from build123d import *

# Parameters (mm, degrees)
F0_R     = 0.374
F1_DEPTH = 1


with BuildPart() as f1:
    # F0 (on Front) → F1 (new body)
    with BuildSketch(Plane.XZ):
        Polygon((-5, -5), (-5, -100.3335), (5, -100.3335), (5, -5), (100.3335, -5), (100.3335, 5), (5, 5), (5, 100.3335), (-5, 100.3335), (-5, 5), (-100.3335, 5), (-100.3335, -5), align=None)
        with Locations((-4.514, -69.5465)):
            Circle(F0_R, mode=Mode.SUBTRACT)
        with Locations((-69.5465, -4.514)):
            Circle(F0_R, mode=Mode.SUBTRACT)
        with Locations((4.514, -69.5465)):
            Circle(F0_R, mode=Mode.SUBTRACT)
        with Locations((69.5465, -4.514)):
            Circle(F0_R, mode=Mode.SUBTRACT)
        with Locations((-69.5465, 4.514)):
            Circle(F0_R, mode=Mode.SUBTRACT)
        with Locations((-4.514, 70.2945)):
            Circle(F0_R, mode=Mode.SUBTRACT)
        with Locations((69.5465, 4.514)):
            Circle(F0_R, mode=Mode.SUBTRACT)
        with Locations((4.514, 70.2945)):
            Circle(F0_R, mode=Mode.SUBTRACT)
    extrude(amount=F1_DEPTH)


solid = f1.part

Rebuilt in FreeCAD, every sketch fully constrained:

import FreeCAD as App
import Part
import Sketcher
Q = App.Units.Quantity


def add_polygon(sketch, points):
    """Adds a closed chain of lines whose ends are joined by coincident constraints."""
    first, n = sketch.GeometryCount, len(points)
    for a, b in zip(points, points[1:] + points[:1]):
        sketch.addGeometry(Part.LineSegment(App.Vector(*a, 0), App.Vector(*b, 0)), False)
    for i in range(n):
        sketch.addConstraint(Sketcher.Constraint("Coincident", first + i, 2, first + (i + 1) % n, 1))

doc = App.newDocument("Part")
body = doc.addObject("PartDesign::Body", "Body")

sketch1 = body.newObject("Sketcher::SketchObject", "Sketch")
sketch1.AttachmentSupport = (doc.getObject("XZ_Plane"), [""])
sketch1.MapMode = "FlatFace"
add_polygon(sketch1, [(-5, -5), (-5, -100.33), (5, -100.33), (5, -5), (100.33, -5), (100.33, 5), (5, 5), (5, 100.33), (-5, 100.33), (-5, 5), (-100.33, 5), (-100.33, -5)])
sketch1.addGeometry(Part.Circle(App.Vector(-4.51, -69.55, 0), App.Vector(0, 0, 1), 0.37), False)
sketch1.addGeometry(Part.Circle(App.Vector(-69.55, -4.51, 0), App.Vector(0, 0, 1), 0.37), False)
sketch1.addGeometry(Part.Circle(App.Vector(4.51, -69.55, 0), App.Vector(0, 0, 1), 0.37), False)
sketch1.addGeometry(Part.Circle(App.Vector(69.55, -4.51, 0), App.Vector(0, 0, 1), 0.37), False)
sketch1.addGeometry(Part.Circle(App.Vector(-69.55, 4.51, 0), App.Vector(0, 0, 1), 0.37), False)
sketch1.addGeometry(Part.Circle(App.Vector(-4.51, 70.29, 0), App.Vector(0, 0, 1), 0.37), False)
sketch1.addGeometry(Part.Circle(App.Vector(69.55, 4.51, 0), App.Vector(0, 0, 1), 0.37), False)
sketch1.addGeometry(Part.Circle(App.Vector(4.51, 70.29, 0), App.Vector(0, 0, 1), 0.37), False)
sketch1.addConstraint(Sketcher.Constraint("Vertical", 0))
sketch1.addConstraint(Sketcher.Constraint("Horizontal", 1))
sketch1.addConstraint(Sketcher.Constraint("Vertical", 2))
sketch1.addConstraint(Sketcher.Constraint("Horizontal", 3))
sketch1.addConstraint(Sketcher.Constraint("Vertical", 4))
sketch1.addConstraint(Sketcher.Constraint("Horizontal", 5))
sketch1.addConstraint(Sketcher.Constraint("Vertical", 6))
sketch1.addConstraint(Sketcher.Constraint("Horizontal", 7))
sketch1.addConstraint(Sketcher.Constraint("Vertical", 8))
sketch1.addConstraint(Sketcher.Constraint("Horizontal", 9))
sketch1.addConstraint(Sketcher.Constraint("Vertical", 10))
sketch1.addConstraint(Sketcher.Constraint("Horizontal", 11))
sketch1.addConstraint(Sketcher.Constraint("Equal", 12, 13))
sketch1.addConstraint(Sketcher.Constraint("Equal", 13, 14))
sketch1.addConstraint(Sketcher.Constraint("Equal", 14, 15))
sketch1.addConstraint(Sketcher.Constraint("Equal", 15, 16))
sketch1.addConstraint(Sketcher.Constraint("Equal", 16, 17))
sketch1.addConstraint(Sketcher.Constraint("Equal", 17, 18))
sketch1.addConstraint(Sketcher.Constraint("Equal", 18, 19))
sketch1.addConstraint(Sketcher.Constraint("Symmetric", 15, 3, 16, 3, -1, 1))
sketch1.addConstraint(Sketcher.Constraint("Symmetric", 13, 3, 18, 3, -1, 1))
sketch1.addConstraint(Sketcher.Constraint("Symmetric", 0, 2, 6, 2, -1, 1))
sketch1.addConstraint(Sketcher.Constraint("Symmetric", 2, 2, 8, 2, -1, 1))
sketch1.addConstraint(Sketcher.Constraint("Symmetric", 4, 2, 10, 2, -1, 1))
sketch1.addConstraint(Sketcher.Constraint("Symmetric", 12, 3, 14, 3, -2))
sketch1.addConstraint(Sketcher.Constraint("Symmetric", 13, 3, 15, 3, -2))
sketch1.addConstraint(Sketcher.Constraint("Symmetric", 17, 3, 19, 3, -2))
sketch1.addConstraint(Sketcher.Constraint("Symmetric", 5, 2, 8, 2, -2))
sketch1.addConstraint(Sketcher.Constraint("Vertical", 12, 3, 17, 3))
sketch1.addConstraint(Sketcher.Constraint("Equal", 11, 0))
sketch1.addConstraint(Sketcher.Constraint("Equal", 7, 4))
sketch1.addConstraint(Sketcher.Constraint("DistanceX", 1, 1, 1, 2, Q("10 mm")))
sketch1.addConstraint(Sketcher.Constraint("Diameter", 12, Q("0.748 mm")))
sketch1.addConstraint(Sketcher.Constraint("DistanceX", 3, 1, 3, 2, Q("95.3335 mm")))
sketch1.addConstraint(Sketcher.Constraint("DistanceX", 12, 3, -1, 1, Q("4.514 mm")))
sketch1.addConstraint(Sketcher.Constraint("DistanceY", 13, 3, -1, 1, Q("4.514 mm")))
sketch1.addConstraint(Sketcher.Constraint("DistanceX", 13, 3, 15, 3, Q("139.093 mm")))
sketch1.addConstraint(Sketcher.Constraint("DistanceY", 12, 3, 17, 3, Q("139.841 mm")))
sketch1.addConstraint(Sketcher.Constraint("DistanceY", 0, 2, 12, 3, Q("30.787 mm")))
pad1 = body.newObject("PartDesign::Pad", "Pad")
pad1.Profile = sketch1
pad1.Length = 1

doc.recompute()
